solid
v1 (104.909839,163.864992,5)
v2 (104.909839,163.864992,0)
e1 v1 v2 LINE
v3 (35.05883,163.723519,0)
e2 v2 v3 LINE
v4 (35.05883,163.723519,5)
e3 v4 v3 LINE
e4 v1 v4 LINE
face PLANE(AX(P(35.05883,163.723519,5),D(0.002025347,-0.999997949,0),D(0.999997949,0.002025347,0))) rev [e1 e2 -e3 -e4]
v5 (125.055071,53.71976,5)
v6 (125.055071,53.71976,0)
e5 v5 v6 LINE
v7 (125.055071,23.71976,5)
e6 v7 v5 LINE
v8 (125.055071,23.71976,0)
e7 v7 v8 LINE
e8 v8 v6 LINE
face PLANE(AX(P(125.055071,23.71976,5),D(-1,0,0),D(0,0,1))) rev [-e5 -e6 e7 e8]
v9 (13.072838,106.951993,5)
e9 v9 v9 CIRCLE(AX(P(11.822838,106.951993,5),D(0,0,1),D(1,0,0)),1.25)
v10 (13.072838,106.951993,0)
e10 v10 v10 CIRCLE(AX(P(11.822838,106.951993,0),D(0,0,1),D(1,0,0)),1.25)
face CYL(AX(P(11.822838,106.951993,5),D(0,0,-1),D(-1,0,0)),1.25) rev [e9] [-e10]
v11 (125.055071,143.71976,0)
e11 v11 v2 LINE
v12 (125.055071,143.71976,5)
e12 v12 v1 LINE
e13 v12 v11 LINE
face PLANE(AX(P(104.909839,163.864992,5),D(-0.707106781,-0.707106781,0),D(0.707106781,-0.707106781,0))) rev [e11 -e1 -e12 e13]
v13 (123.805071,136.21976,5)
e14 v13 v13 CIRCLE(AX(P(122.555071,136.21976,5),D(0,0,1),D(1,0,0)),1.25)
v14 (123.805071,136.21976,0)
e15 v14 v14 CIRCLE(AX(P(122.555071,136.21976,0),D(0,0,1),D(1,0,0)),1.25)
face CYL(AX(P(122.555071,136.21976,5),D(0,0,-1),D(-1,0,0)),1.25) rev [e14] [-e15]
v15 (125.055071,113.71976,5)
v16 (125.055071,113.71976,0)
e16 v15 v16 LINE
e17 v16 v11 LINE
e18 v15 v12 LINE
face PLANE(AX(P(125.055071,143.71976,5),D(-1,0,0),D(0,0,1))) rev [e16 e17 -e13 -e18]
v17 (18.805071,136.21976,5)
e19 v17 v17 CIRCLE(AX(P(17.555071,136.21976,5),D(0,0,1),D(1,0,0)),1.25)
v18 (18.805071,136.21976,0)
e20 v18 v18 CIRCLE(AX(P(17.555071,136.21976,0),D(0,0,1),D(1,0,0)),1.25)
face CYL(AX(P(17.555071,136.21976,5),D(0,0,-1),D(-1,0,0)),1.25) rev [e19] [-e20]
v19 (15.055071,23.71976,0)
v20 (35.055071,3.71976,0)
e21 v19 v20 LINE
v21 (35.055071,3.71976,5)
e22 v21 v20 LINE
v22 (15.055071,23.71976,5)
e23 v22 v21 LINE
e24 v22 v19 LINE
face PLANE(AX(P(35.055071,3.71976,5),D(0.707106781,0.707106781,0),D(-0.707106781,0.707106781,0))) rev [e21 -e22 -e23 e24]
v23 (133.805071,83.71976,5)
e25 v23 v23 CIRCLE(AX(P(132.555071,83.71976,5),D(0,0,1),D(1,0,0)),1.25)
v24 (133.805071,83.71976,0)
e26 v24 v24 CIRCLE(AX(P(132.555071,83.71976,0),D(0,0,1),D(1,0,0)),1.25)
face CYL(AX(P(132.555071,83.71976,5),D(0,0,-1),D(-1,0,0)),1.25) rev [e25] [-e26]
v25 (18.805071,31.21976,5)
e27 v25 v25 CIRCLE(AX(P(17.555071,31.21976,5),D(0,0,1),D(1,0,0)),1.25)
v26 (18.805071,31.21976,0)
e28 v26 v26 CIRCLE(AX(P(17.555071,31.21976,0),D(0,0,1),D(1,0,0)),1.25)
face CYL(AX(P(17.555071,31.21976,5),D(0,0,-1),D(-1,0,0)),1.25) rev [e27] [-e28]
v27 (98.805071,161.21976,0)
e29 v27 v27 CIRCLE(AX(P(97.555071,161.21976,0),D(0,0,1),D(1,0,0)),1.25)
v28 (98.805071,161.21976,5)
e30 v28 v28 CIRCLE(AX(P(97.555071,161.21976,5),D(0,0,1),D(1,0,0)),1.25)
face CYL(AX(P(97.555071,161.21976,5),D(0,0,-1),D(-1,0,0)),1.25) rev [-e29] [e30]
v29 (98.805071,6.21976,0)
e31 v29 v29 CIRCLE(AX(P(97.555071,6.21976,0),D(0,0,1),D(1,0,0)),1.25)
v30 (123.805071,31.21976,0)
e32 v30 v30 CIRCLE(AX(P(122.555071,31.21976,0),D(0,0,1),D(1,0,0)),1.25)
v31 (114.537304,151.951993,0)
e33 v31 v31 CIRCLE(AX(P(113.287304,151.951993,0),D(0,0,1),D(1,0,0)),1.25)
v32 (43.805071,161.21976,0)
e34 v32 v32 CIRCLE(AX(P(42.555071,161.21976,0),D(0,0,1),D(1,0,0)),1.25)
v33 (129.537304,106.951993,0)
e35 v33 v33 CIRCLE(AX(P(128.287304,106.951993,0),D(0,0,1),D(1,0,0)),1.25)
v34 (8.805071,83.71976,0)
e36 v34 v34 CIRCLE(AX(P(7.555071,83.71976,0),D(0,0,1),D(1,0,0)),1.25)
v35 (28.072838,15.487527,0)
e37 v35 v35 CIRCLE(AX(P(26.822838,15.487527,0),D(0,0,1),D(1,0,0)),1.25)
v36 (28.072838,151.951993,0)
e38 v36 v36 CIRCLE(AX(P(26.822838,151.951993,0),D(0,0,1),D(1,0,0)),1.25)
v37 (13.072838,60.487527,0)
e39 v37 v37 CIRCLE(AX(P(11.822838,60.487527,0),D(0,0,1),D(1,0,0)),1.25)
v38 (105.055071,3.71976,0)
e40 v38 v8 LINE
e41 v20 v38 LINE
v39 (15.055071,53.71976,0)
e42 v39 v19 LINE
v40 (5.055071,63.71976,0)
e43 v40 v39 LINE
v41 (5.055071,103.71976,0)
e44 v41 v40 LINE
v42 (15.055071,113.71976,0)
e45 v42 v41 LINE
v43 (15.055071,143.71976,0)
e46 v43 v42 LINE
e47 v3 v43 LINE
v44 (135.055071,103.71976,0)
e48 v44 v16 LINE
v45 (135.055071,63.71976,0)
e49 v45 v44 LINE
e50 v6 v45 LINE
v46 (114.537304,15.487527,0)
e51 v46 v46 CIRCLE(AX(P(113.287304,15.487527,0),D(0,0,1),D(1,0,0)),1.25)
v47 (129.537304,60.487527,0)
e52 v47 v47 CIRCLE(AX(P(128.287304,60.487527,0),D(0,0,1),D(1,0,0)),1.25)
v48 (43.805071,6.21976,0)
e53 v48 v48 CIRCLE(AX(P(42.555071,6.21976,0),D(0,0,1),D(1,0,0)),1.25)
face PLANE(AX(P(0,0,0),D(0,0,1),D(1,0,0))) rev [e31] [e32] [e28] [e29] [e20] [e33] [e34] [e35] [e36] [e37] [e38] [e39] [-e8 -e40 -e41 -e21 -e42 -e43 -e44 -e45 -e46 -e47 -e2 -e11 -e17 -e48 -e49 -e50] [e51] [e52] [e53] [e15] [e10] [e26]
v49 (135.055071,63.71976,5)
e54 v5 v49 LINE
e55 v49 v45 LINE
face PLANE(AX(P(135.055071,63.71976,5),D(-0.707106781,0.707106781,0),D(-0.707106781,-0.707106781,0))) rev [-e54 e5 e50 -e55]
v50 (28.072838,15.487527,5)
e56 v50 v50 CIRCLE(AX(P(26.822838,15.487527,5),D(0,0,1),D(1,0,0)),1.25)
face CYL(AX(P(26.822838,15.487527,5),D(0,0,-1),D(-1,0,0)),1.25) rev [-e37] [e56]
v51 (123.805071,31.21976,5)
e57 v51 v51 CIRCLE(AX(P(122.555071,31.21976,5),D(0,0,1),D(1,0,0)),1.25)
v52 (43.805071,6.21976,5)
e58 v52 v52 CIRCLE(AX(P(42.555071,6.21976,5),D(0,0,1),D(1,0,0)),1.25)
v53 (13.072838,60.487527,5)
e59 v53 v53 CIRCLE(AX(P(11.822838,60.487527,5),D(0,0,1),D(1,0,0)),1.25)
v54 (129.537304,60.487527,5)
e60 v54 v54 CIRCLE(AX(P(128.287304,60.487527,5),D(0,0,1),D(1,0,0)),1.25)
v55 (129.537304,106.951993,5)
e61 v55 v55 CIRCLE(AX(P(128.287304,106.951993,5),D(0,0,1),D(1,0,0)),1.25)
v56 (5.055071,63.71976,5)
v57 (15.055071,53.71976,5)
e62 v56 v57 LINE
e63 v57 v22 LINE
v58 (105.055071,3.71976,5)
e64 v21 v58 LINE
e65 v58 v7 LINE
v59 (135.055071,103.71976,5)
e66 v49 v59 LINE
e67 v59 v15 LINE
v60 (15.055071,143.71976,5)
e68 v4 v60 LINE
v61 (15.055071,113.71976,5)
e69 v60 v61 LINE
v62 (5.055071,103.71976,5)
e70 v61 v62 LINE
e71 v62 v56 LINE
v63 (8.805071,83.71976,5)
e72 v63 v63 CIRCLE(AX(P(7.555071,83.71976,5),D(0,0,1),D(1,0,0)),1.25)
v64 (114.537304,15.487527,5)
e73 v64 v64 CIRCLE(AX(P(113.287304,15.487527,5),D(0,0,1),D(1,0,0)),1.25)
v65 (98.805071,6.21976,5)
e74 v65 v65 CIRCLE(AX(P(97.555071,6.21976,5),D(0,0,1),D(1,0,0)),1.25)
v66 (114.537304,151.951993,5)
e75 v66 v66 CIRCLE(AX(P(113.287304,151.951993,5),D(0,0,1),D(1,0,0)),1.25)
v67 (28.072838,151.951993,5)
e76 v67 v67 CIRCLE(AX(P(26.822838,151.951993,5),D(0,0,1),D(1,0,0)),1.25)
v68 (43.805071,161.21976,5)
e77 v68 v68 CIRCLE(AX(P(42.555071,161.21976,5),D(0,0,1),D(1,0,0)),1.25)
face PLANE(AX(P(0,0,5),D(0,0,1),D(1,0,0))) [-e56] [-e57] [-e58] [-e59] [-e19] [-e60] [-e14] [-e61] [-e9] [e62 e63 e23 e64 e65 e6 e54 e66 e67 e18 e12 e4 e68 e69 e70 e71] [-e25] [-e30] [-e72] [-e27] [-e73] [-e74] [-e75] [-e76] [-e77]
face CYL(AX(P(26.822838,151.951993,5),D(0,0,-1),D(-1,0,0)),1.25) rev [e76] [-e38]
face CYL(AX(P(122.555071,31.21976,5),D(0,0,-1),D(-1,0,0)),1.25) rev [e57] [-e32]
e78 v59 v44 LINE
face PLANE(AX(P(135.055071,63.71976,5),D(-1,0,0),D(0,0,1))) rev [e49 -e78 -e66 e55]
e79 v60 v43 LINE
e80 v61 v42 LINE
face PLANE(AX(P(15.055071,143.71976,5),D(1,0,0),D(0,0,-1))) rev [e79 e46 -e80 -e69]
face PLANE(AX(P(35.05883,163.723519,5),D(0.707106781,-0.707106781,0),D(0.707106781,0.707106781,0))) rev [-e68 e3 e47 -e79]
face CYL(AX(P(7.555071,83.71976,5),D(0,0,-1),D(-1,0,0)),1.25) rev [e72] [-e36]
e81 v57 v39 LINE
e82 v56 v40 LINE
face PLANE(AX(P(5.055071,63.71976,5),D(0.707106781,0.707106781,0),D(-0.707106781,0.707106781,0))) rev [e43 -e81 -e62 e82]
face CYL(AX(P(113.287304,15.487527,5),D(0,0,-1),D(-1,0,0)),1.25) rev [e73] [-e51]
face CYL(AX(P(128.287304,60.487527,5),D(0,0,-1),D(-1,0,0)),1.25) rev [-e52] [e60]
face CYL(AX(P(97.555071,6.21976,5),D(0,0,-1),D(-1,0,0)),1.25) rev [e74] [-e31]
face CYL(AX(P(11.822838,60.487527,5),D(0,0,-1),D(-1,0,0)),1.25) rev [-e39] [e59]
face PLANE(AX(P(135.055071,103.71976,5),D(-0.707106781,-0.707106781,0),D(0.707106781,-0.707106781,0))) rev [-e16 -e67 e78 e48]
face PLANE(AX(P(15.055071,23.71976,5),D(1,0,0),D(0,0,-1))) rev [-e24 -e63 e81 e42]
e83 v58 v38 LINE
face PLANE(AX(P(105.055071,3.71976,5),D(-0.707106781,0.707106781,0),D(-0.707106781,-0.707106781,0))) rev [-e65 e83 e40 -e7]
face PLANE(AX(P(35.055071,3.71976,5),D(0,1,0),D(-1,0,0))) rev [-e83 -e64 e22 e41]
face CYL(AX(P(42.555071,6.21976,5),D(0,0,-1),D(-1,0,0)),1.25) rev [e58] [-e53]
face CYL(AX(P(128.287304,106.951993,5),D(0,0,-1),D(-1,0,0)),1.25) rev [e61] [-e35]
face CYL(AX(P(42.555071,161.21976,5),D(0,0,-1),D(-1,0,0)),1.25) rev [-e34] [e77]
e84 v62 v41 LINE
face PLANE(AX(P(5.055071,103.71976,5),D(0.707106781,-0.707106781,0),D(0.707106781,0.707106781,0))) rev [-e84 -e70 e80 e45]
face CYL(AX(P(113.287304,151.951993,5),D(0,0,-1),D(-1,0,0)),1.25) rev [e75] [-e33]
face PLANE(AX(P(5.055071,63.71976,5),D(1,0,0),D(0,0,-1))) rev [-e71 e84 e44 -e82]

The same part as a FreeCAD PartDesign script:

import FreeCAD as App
import Part
import Sketcher
from FreeCAD import Vector
Q = App.Units.Quantity


def add_polygon(sketch, points):
    """Adds a closed chain of lines whose ends are joined by coincident constraints."""
    first, n = sketch.GeometryCount, len(points)
    for a, b in zip(points, points[1:] + points[:1]):
        sketch.addGeometry(Part.LineSegment(App.Vector(*a, 0), App.Vector(*b, 0)), False)
    for i in range(n):
        sketch.addConstraint(Sketcher.Constraint("Coincident", first + i, 2, first + (i + 1) % n, 1))

doc = App.newDocument("Part")
body = doc.addObject("PartDesign::Body", "Body")

sketch1 = doc.addObject("Sketcher::SketchObject", "Sketch")
body.addObject(sketch1)
sketch1.AttachmentSupport = (doc.XY_Plane, [""])
sketch1.MapMode = "FlatFace"
add_polygon(sketch1, [(105.1, 3.7), (125.1, 23.7), (125.1, 53.7), (135.1, 63.7), (135.1, 103.7), (125.1, 113.7), (125.1, 143.7), (104.9, 163.9), (35.1, 163.7), (15.1, 143.7), (15.1, 113.7), (5.1, 103.7), (5.1, 63.7), (15.1, 53.7), (15.1, 23.7), (35.1, 3.7)])
sketch1.addGeometry(Part.Circle(Vector(26.8, 15.5, 0), Vector(0, 0, 1), 1.2), False)
sketch1.addGeometry(Part.Circle(Vector(17.6, 31.2, 0), Vector(0, 0, 1), 1.2), False)
sketch1.addGeometry(Part.Circle(Vector(42.6, 6.2, 0), Vector(0, 0, 1), 1.2), False)
sketch1.addGeometry(Part.Circle(Vector(11.8, 60.5, 0), Vector(0, 0, 1), 1.2), False)
sketch1.addGeometry(Part.Circle(Vector(97.6, 6.2, 0), Vector(0, 0, 1), 1.2), False)
sketch1.addGeometry(Part.Circle(Vector(113.3, 15.5, 0), Vector(0, 0, 1), 1.2), False)
sketch1.addGeometry(Part.Circle(Vector(122.6, 31.2, 0), Vector(0, 0, 1), 1.2), False)
sketch1.addGeometry(Part.Circle(Vector(128.3, 60.5, 0), Vector(0, 0, 1), 1.2), False)
sketch1.addGeometry(Part.Circle(Vector(7.6, 83.7, 0), Vector(0, 0, 1), 1.2), False)
sketch1.addGeometry(Part.Circle(Vector(11.8, 107, 0), Vector(0, 0, 1), 1.2), False)
sketch1.addGeometry(Part.Circle(Vector(17.6, 136.2, 0), Vector(0, 0, 1), 1.2), False)
sketch1.addGeometry(Part.Circle(Vector(26.8, 152, 0), Vector(0, 0, 1), 1.2), False)
sketch1.addGeometry(Part.Circle(Vector(42.6, 161.2, 0), Vector(0, 0, 1), 1.2), False)
sketch1.addGeometry(Part.Circle(Vector(132.6, 83.7, 0), Vector(0, 0, 1), 1.2), False)
sketch1.addGeometry(Part.Circle(Vector(128.3, 107, 0), Vector(0, 0, 1), 1.2), False)
sketch1.addGeometry(Part.Circle(Vector(97.6, 161.2, 0), Vector(0, 0, 1), 1.2), False)
sketch1.addGeometry(Part.Circle(Vector(122.6, 136.2, 0), Vector(0, 0, 1), 1.2), False)
sketch1.addGeometry(Part.Circle(Vector(113.3, 152, 0), Vector(0, 0, 1), 1.2), False)
sketch1.addConstraint([
    Sketcher.Constraint("Vertical", 1),
    Sketcher.Constraint("Vertical", 3),
    Sketcher.Constraint("Vertical", 5),
    Sketcher.Constraint("Vertical", 9),
    Sketcher.Constraint("Vertical", 11),
    Sketcher.Constraint("Vertical", 13),
    Sketcher.Constraint("Horizontal", 15),
    Sketcher.Constraint("Equal", 16, 17),
    Sketcher.Constraint("Equal", 17, 18),
    Sketcher.Constraint("Equal", 18, 19),
    Sketcher.Constraint("Equal", 19, 20),
    Sketcher.Constraint("Equal", 20, 21),
    Sketcher.Constraint("Equal", 21, 22),
    Sketcher.Constraint("Equal", 22, 23),
    Sketcher.Constraint("Equal", 23, 24),
    Sketcher.Constraint("Equal", 24, 25),
    Sketcher.Constraint("Equal", 25, 26),
    Sketcher.Constraint("Equal", 26, 27),
    Sketcher.Constraint("Equal", 27, 28),
    Sketcher.Constraint("Equal", 28, 29),
    Sketcher.Constraint("Equal", 29, 30),
    Sketcher.Constraint("Equal", 30, 31),
    Sketcher.Constraint("Equal", 31, 32),
    Sketcher.Constraint("Equal", 32, 33),
    Sketcher.Constraint("Parallel", 0, 2),
    Sketcher.Constraint("Perpendicular", 2, 4),
    Sketcher.Constraint("Parallel", 4, 6),
    Sketcher.Constraint("Perpendicular", 6, 8),
    Sketcher.Constraint("Parallel", 8, 10),
    Sketcher.Constraint("Perpendicular", 10, 12),
    Sketcher.Constraint("Parallel", 12, 14),
    Sketcher.Constraint("Horizontal", 18, 3, 20, 3),
    Sketcher.Constraint("Horizontal", 16, 3, 21, 3),
    Sketcher.Constraint("Horizontal", 17, 3, 22, 3),
    Sketcher.Constraint("Horizontal", 19, 3, 23, 3),
    Sketcher.Constraint("Horizontal", 24, 3, 29, 3),
    Sketcher.Constraint("Horizontal", 25, 3, 30, 3),
    Sketcher.Constraint("Horizontal", 28, 3, 31, 3),
    Sketcher.Constraint("Horizontal", 26, 3, 32, 3),
    Sketcher.Constraint("Horizontal", 27, 3, 33, 3),
    Sketcher.Constraint("Horizontal", 5, 2, 8, 2),
    Sketcher.Constraint("Horizontal", 4, 2, 9, 2),
    Sketcher.Constraint("Horizontal", 3, 2, 10, 2),
    Sketcher.Constraint("Horizontal", 2, 2, 11, 2),
    Sketcher.Constraint("Horizontal", 1, 2, 12, 2),
    Sketcher.Constraint("Horizontal", 0, 2, 13, 2),
    Sketcher.Constraint("Vertical", 19, 3, 25, 3),
    Sketcher.Constraint("Vertical", 17, 3, 26, 3),
    Sketcher.Constraint("Vertical", 16, 3, 27, 3),
    Sketcher.Constraint("Vertical", 18, 3, 28, 3),
    Sketcher.Constraint("Vertical", 23, 3, 30, 3),
    Sketcher.Constraint("Vertical", 20, 3, 31, 3),
    Sketcher.Constraint("Vertical", 22, 3, 32, 3),
    Sketcher.Constraint("Vertical", 21, 3, 33, 3),
    Sketcher.Constraint("Vertical", 1, 2, 4, 2),
    Sketcher.Constraint("Vertical", 9, 2, 12, 2),
    Sketcher.Constraint("Equal", 1, 5),
    Sketcher.Constraint("Diameter", 16, Q("2.5 mm")),
    Sketcher.Constraint("DistanceX", 15, 1, 15, 2, Q("70 mm")),
    Sketcher.Constraint("DistanceY", 1, 1, 1, 2, Q("30 mm")),
    Sketcher.Constraint("DistanceY", 3, 1, 3, 2, Q("40 mm")),
    Sketcher.Constraint("DistanceX", 17, 3, 18, 3, Q("25 mm")),
    Sketcher.Constraint("DistanceY", 18, 3, 17, 3, Q("25 mm")),
    Sketcher.Constraint("DistanceX", 19, 3, 16, 3, Q("15 mm")),
    Sketcher.Constraint("DistanceY", 16, 3, 19, 3, Q("45 mm")),
    Sketcher.Constraint("DistanceX", 18, 3, 20, 3, Q("55 mm")),
    Sketcher.Constraint("DistanceX", 20, 3, 22, 3, Q("25 mm")),
    Sketcher.Constraint("DistanceX", 21, 3, 23, 3, Q("15 mm")),
    Sketcher.Constraint("DistanceX", 24, 3, 17, 3, Q("10 mm")),
    Sketcher.Constraint("DistanceY", 17, 3, 26, 3, Q("105 mm")),
    Sketcher.Constraint("DistanceY", 25, 3, 27, 3, Q("45 mm")),
    Sketcher.Constraint("DistanceY", 26, 3, 28, 3, Q("25 mm")),
    Sketcher.Constraint("DistanceX", 22, 3, 29, 3, Q("10 mm")),
    Sketcher.Constraint("DistanceY", 0, 2, 29, 3, Q("60 mm")),
    Sketcher.Constraint("DistanceX", 1, 2, 2, 2, Q("10 mm")),
    Sketcher.Constraint("DistanceX", 13, 2, 14, 2, Q("20 mm")),
    Sketcher.Constraint("DistanceY", 17, 3, 24, 3, Q("52.5 mm")),
    Sketcher.Constraint("DistanceX", 22, 3, 0, 2, Q("2.5 mm")),
    Sketcher.Constraint("DistanceY", 33, 3, 6, 2, Q("11.912999 mm")),
    Sketcher.Constraint("Distance", 6, Q("28.48966 mm")),
    Sketcher.Constraint("DistanceX", -1, 1, 16, 3, Q("26.822838 mm")),
    Sketcher.Constraint("DistanceX", -1, 1, 17, 3, Q("17.555071 mm")),
    Sketcher.Constraint("DistanceY", -1, 1, 17, 3, Q("31.21976 mm")),
    Sketcher.Constraint("DistanceX", -1, 1, 7, 2, Q("35.05883 mm")),
    Sketcher.Constraint("DistanceY", -1, 1, 16, 3, Q("15.487527 mm")),
    Sketcher.Constraint("DistanceX", -1, 1, 21, 3, Q("113.287304 mm")),
])
pad1 = doc.addObject("PartDesign::Pad", "Pad")
body.addObject(pad1)
pad1.Profile = sketch1
pad1.Length = 5

doc.recompute()
